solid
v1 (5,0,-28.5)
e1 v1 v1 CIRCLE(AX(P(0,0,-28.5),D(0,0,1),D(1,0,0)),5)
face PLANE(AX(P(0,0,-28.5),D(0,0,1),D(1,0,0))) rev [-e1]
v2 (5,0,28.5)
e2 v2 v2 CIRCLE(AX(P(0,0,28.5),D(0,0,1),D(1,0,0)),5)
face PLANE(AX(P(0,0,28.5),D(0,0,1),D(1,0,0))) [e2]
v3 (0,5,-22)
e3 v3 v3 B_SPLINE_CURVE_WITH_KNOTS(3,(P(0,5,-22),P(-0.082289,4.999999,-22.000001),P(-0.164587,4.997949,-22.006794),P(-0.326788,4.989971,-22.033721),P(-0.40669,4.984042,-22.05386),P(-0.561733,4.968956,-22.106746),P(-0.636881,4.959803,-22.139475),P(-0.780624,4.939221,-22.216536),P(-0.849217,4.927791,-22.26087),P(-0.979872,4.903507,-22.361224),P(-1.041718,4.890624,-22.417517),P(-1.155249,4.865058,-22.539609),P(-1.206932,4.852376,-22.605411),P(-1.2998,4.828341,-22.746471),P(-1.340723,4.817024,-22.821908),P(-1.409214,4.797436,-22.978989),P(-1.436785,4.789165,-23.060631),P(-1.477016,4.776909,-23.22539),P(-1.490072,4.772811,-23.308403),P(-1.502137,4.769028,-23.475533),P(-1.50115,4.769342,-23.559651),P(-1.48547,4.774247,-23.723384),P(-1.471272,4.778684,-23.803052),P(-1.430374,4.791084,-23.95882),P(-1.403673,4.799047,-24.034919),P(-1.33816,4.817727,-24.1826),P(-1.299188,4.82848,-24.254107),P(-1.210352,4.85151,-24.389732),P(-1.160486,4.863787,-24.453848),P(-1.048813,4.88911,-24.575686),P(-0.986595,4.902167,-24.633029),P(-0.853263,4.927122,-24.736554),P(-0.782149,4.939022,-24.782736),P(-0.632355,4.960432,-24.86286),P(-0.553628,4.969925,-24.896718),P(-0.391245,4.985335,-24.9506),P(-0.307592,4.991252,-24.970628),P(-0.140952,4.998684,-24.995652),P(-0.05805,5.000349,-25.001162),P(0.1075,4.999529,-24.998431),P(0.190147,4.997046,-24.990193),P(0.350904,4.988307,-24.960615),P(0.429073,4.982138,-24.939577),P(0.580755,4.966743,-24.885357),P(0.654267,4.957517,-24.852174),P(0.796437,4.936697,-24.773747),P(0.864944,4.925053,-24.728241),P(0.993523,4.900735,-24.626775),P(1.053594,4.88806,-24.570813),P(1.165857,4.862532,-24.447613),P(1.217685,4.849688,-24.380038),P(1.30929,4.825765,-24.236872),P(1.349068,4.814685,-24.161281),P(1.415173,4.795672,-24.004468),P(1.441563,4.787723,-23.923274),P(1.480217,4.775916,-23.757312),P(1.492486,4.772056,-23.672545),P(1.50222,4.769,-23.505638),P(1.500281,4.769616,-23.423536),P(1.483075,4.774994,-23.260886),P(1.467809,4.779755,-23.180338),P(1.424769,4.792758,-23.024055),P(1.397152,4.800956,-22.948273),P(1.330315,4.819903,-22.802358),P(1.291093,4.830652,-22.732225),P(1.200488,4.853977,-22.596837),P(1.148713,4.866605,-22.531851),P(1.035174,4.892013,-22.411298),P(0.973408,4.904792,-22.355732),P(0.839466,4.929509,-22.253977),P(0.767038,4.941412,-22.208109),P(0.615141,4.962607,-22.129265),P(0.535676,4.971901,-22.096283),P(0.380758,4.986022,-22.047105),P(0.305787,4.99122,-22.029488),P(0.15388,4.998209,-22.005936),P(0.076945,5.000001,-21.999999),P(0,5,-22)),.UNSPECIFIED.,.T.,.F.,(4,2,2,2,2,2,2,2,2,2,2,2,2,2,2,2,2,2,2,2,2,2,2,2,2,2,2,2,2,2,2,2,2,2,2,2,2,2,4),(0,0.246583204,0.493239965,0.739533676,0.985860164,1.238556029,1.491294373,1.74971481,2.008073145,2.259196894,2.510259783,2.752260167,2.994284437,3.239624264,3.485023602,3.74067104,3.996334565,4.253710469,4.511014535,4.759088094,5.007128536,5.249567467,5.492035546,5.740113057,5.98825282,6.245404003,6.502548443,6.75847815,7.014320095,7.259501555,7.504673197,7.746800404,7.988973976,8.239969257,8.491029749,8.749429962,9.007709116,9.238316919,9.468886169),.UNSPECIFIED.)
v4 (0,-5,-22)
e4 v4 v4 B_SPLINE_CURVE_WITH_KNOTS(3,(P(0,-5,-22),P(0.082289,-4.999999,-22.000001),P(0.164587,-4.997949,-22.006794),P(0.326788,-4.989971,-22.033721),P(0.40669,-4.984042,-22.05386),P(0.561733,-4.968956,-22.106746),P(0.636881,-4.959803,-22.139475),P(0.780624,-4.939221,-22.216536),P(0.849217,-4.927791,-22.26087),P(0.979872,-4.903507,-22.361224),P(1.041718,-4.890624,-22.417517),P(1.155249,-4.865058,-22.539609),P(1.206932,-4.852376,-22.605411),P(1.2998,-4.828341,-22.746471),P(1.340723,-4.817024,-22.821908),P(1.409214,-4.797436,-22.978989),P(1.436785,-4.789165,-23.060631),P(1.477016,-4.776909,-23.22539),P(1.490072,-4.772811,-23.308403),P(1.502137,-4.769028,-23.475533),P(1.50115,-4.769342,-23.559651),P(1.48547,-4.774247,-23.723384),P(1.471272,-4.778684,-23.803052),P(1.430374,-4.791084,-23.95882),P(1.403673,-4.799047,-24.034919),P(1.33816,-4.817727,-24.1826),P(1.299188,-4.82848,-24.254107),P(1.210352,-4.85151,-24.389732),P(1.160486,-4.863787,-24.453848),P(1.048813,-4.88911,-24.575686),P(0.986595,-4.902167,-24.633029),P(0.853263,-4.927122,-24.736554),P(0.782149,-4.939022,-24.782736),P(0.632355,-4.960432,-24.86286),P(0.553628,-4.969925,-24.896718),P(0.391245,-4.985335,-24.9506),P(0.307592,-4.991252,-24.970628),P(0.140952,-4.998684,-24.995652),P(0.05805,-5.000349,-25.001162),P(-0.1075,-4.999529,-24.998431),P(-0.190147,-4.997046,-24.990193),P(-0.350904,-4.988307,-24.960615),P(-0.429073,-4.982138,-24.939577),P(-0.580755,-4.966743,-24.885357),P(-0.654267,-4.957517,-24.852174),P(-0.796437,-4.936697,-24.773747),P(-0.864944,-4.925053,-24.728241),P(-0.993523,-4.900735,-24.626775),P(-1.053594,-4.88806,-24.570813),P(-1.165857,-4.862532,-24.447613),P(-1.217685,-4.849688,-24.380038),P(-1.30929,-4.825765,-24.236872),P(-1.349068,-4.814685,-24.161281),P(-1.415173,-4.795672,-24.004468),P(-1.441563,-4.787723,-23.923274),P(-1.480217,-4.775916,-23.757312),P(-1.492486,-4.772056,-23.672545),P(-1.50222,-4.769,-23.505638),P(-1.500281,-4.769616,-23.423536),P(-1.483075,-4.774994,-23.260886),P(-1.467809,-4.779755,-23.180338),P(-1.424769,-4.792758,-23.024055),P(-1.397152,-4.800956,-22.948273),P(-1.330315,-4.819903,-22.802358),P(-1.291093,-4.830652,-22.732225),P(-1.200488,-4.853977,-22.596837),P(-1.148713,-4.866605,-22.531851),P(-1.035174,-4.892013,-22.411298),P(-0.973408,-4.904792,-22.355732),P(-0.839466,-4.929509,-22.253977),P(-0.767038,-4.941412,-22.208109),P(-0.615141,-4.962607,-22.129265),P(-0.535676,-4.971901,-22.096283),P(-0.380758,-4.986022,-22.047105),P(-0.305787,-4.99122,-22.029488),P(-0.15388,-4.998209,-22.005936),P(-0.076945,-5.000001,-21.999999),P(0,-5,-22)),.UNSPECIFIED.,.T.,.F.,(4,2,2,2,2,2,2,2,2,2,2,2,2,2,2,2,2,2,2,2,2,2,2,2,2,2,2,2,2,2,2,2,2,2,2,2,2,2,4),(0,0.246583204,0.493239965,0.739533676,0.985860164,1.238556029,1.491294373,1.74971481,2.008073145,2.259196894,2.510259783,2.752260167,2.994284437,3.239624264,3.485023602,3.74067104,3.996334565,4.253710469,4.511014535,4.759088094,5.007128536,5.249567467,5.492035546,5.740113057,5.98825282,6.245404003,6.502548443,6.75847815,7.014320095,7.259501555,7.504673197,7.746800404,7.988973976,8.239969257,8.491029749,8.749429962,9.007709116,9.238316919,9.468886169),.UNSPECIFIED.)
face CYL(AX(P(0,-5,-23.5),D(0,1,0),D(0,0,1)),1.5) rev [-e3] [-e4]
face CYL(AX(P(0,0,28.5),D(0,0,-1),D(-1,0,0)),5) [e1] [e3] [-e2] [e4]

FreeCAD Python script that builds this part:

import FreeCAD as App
import Part
import Sketcher

V = App.Vector

doc = App.newDocument("Part")
body = doc.addObject("PartDesign::Body", "Body")

# Sketch on XY plane
sketch1 = body.newObject("Sketcher::SketchObject", "Sketch")
sketch1.AttachmentSupport = (doc.getObject("XY_Plane"), [""])
sketch1.MapMode = "FlatFace"
sketch1.addGeometry(Part.Circle(V(0, 0, 0), V(0, 0, 1), 5), False)
sketch1.addConstraint([
    Sketcher.Constraint("Coincident", 0, 3, -1, 1),
    Sketcher.Constraint("Diameter", 0, 10.0),
])
pad1 = body.newObject("PartDesign::Pad", "Pad")
pad1.Profile = sketch1
pad1.Length = 57
pad1.Midplane = True

# Sketch on XZ plane
sketch2 = body.newObject("Sketcher::SketchObject", "Sketch001")
sketch2.AttachmentSupport = (doc.getObject("XZ_Plane"), [""])
sketch2.MapMode = "FlatFace"
sketch2.addGeometry(Part.Circle(V(0, -23.5, 0), V(0, 0, 1), 1.5), False)
sketch2.addConstraint([
    Sketcher.Constraint("PointOnObject", 0, 3, -2),
    Sketcher.Constraint("Diameter", 0, 3.0),
    Sketcher.Constraint("DistanceY", 0, 3, -1, 1, 23.5),
])
pocket1 = body.newObject("PartDesign::Pocket", "Pocket")
pocket1.Profile = sketch2
pocket1.Type = "ThroughAll"
pocket1.Midplane = True

doc.recompute()
